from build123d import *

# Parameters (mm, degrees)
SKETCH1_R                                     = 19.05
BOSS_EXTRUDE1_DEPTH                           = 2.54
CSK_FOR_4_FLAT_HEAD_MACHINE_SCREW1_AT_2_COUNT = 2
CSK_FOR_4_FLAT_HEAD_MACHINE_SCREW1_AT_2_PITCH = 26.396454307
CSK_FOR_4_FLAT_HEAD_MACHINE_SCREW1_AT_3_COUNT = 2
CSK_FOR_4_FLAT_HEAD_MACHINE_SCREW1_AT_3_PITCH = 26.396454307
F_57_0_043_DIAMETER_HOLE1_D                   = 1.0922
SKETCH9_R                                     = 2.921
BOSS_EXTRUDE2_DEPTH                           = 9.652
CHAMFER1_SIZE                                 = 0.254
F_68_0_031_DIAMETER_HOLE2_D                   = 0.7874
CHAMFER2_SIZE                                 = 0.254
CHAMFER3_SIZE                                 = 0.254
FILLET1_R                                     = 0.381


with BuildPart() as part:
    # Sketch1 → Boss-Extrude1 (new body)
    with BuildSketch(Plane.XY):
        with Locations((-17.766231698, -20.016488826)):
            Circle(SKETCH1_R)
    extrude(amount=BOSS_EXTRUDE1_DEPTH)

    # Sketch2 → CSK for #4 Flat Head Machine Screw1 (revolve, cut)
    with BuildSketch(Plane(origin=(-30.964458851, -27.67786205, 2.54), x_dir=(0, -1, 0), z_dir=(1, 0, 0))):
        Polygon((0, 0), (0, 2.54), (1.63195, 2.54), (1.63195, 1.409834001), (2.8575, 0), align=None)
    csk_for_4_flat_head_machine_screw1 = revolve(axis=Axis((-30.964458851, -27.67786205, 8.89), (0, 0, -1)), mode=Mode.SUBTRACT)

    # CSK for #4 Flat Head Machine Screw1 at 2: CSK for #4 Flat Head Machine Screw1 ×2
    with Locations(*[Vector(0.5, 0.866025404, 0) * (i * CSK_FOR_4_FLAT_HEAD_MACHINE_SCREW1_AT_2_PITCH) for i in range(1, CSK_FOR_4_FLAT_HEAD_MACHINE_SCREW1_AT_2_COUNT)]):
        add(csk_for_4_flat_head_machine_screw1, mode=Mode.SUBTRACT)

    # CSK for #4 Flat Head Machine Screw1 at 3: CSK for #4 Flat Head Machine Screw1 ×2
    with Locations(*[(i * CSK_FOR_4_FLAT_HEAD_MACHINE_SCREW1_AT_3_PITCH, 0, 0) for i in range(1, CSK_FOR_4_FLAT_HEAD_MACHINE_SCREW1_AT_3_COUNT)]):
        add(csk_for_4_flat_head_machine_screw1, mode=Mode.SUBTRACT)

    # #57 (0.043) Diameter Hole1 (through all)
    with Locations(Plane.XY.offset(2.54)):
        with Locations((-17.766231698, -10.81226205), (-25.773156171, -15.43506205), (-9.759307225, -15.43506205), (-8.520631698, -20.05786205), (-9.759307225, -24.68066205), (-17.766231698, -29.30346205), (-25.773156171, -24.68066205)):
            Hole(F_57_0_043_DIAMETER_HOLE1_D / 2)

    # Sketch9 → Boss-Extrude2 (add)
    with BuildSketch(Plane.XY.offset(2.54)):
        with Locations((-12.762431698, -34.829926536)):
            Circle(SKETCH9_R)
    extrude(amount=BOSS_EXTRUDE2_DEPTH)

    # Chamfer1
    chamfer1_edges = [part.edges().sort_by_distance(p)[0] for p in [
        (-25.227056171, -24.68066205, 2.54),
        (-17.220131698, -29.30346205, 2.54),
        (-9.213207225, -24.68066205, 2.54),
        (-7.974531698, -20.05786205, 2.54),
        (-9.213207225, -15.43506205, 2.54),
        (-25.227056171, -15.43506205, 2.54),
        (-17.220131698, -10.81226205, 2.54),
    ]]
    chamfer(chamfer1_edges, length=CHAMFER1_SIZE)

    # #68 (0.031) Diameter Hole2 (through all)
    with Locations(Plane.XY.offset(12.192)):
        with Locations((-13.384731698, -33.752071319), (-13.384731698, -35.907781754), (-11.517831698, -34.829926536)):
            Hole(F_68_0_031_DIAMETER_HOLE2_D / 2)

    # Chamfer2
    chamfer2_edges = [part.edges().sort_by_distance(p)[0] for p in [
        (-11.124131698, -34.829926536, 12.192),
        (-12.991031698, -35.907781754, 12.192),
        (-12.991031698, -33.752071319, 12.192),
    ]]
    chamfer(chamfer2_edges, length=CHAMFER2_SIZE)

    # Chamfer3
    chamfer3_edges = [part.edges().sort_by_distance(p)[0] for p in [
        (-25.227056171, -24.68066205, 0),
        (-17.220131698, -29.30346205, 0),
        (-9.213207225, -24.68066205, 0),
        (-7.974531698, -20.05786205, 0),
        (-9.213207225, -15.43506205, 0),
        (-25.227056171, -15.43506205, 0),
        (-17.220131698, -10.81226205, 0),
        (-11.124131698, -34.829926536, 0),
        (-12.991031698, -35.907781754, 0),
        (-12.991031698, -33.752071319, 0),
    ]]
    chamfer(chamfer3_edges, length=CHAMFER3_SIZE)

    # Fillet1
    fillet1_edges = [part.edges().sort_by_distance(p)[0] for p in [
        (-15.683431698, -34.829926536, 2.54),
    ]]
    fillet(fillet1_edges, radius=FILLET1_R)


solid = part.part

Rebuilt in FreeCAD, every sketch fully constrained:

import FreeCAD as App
import Part
import Sketcher
Q = App.Units.Quantity


def edges_at(feature, points):
    """Names of the edges that pass closest to the given points."""
    edges = feature.Shape.Edges
    near = lambda p: min(range(len(edges)), key=lambda i: edges[i].distToShape(Part.Vertex(*p))[0])
    return sorted({f"Edge{near(p) + 1}" for p in points})


def add_polygon(sketch, points):
    """Adds a closed chain of lines whose ends are joined by coincident constraints."""
    first, n = sketch.GeometryCount, len(points)
    for a, b in zip(points, points[1:] + points[:1]):
        sketch.addGeometry(Part.LineSegment(App.Vector(*a, 0), App.Vector(*b, 0)), False)
    for i in range(n):
        sketch.addConstraint(Sketcher.Constraint("Coincident", first + i, 2, first + (i + 1) % n, 1))

doc = App.newDocument("Part")
body = doc.addObject("PartDesign::Body", "Body")

# Sketch on XY plane
sketch1 = body.newObject("Sketcher::SketchObject", "Sketch")
sketch1.AttachmentSupport = (doc.getObject("XY_Plane"), [""])
sketch1.MapMode = "FlatFace"
sketch1.addGeometry(Part.Circle(App.Vector(-18, -20, 0), App.Vector(0, 0, 1), 19), False)
sketch1.addConstraint([
    Sketcher.Constraint("Diameter", 0, Q("1.5 in")),
    Sketcher.Constraint("DistanceX", 0, 3, -1, 1, Q("17.766232 mm")),
    Sketcher.Constraint("DistanceY", 0, 3, -1, 1, Q("20.016489 mm")),
])
pad1 = body.newObject("PartDesign::Pad", "Pad")
pad1.Profile = sketch1
pad1.Length = Q("0.1 in")

# Sketch on YZ plane
sketch2 = body.newObject("Sketcher::SketchObject", "Sketch001")
sketch2.AttachmentSupport = (doc.getObject("YZ_Plane"), [""])
sketch2.MapMode = "FlatFace"
sketch2.AttachmentOffset = App.Placement(App.Vector(0, 0, -30.964459), App.Rotation())
add_polygon(sketch2, [(-27.7, 0), (-27.7, 2.5), (-30.5, 2.5), (-29.3, 1.1), (-29.3, 0)])  # lines 0-4
sketch2.addGeometry(Part.LineSegment(App.Vector(-27.7, 2.5, 0), App.Vector(-27.7, 0, 0)), True)  # axis
sketch2.addConstraint([
    Sketcher.Constraint("Vertical", 0),
    Sketcher.Constraint("Horizontal", 1),
    Sketcher.Constraint("Vertical", 3),
    Sketcher.Constraint("Horizontal", 4),
    Sketcher.Constraint("Vertical", 5),
    Sketcher.Constraint("Coincident", 5, 1, 0, 2),
    Sketcher.Constraint("PointOnObject", 3, 2, -1),
    Sketcher.Constraint("PointOnObject", 5, 2, -1),
    Sketcher.Constraint("DistanceY", 0, 1, 0, 2, Q("0.1 in")),
    Sketcher.Constraint("Angle", 2, Q("-49 deg")),
    Sketcher.Constraint("DistanceX", 1, 2, 1, 1, Q("0.1125 in")),
    Sketcher.Constraint("DistanceX", 4, 1, 4, 2, Q("1.63195 mm")),
    Sketcher.Constraint("DistanceX", 0, 2, -1, 1, Q("27.677862 mm")),
])
groove = body.newObject("PartDesign::Groove", "Groove")
groove.Profile = sketch2
groove.ReferenceAxis = (sketch2, ["Axis0"])
groove.Angle = 360
doc.recompute()

datumline = body.newObject("PartDesign::Line", "DatumLine")
datumline.Placement = App.Placement(App.Vector(0, 0, 0), App.Rotation(App.Vector(0, 0, 1), App.Vector(0.5, 0.866025404, 0)))
linearpattern = body.newObject("PartDesign::LinearPattern", "LinearPattern")
linearpattern.Originals = [groove]
linearpattern.Direction = (datumline, [""])
linearpattern.Mode = "offset"
linearpattern.Offset = 26.396454
linearpattern.Occurrences = 2
body.Tip = linearpattern
doc.recompute()

linearpattern2 = body.newObject("PartDesign::LinearPattern", "LinearPattern001")
linearpattern2.Originals = [groove]
linearpattern2.Direction = (doc.getObject("X_Axis"), [""])
linearpattern2.Mode = "offset"
linearpattern2.Offset = 26.396454
linearpattern2.Occurrences = 2
body.Tip = linearpattern2

# Sketch on XY plane
sketch3 = body.newObject("Sketcher::SketchObject", "Sketch002")
sketch3.AttachmentSupport = (doc.getObject("XY_Plane"), [""])
sketch3.MapMode = "FlatFace"
sketch3.AttachmentOffset = App.Placement(App.Vector(0, 0, 0.1 * 25.4), App.Rotation())
sketch3.addGeometry([
    Part.Circle(App.Vector(-17.8, -10.8, 0), App.Vector(0, 0, 1), 0.5),  # 0
    Part.Circle(App.Vector(-25.8, -15.4, 0), App.Vector(0, 0, 1), 0.5),  # 1
    Part.Circle(App.Vector(-9.8, -15.4, 0), App.Vector(0, 0, 1), 0.5),  # 2
    Part.Circle(App.Vector(-8.5, -20.1, 0), App.Vector(0, 0, 1), 0.5),  # 3
    Part.Circle(App.Vector(-9.8, -24.7, 0), App.Vector(0, 0, 1), 0.5),  # 4
    Part.Circle(App.Vector(-17.8, -29.3, 0), App.Vector(0, 0, 1), 0.5),  # 5
    Part.Circle(App.Vector(-25.8, -24.7, 0), App.Vector(0, 0, 1), 0.5),  # 6
], False)
sketch3.addConstraint([
    Sketcher.Constraint("Equal", 0, 1),
    Sketcher.Constraint("Equal", 1, 2),
    Sketcher.Constraint("Equal", 2, 3),
    Sketcher.Constraint("Equal", 3, 4),
    Sketcher.Constraint("Equal", 4, 5),
    Sketcher.Constraint("Equal", 5, 6),
    Sketcher.Constraint("Horizontal", 1, 3, 2, 3),
    Sketcher.Constraint("Horizontal", 4, 3, 6, 3),
    Sketcher.Constraint("Vertical", 2, 3, 4, 3),
    Sketcher.Constraint("Vertical", 0, 3, 5, 3),
    Sketcher.Constraint("Vertical", 1, 3, 6, 3),
    Sketcher.Constraint("Diameter", 0, Q("0.043 in")),
    Sketcher.Constraint("DistanceY", 1, 3, 0, 3, Q("0.182 in")),
    Sketcher.Constraint("DistanceY", 3, 3, 2, 3, Q("0.182 in")),
    Sketcher.Constraint("DistanceX", 0, 3, 3, 3, Q("0.364 in")),
    Sketcher.Constraint("DistanceY", 4, 3, 3, 3, Q("0.182 in")),
    Sketcher.Constraint("DistanceY", 5, 3, 4, 3, Q("0.182 in")),
    Sketcher.Constraint("DistanceX", 0, 3, -1, 1, Q("17.766232 mm")),
    Sketcher.Constraint("DistanceX", 1, 3, 2, 3, Q("16.013849 mm")),
    Sketcher.Constraint("DistanceY", 0, 3, -1, 1, Q("10.812262 mm")),
    Sketcher.Constraint("DistanceX", 1, 3, -1, 1, Q("25.773156 mm")),
])
doc.recompute()
hole = body.newObject("PartDesign::Hole", "Hole")
hole.Profile = sketch3
hole.ThreadType = "None"
hole.Diameter = Q("0.043 in")
hole.DepthType = "ThroughAll"

# Sketch on XY plane
sketch4 = body.newObject("Sketcher::SketchObject", "Sketch003")
sketch4.AttachmentSupport = (doc.getObject("XY_Plane"), [""])
sketch4.MapMode = "FlatFace"
sketch4.AttachmentOffset = App.Placement(App.Vector(0, 0, 0.1 * 25.4), App.Rotation())
sketch4.addGeometry(Part.Circle(App.Vector(-12.8, -34.8, 0), App.Vector(0, 0, 1), 2.9), False)
sketch4.addConstraint([
    Sketcher.Constraint("Diameter", 0, Q("0.23 in")),
    Sketcher.Constraint("DistanceX", 0, 3, -1, 1, Q("12.762432 mm")),
    Sketcher.Constraint("DistanceY", 0, 3, -1, 1, Q("34.829927 mm")),
])
pad2 = body.newObject("PartDesign::Pad", "Pad001")
pad2.Profile = sketch4
pad2.Length = Q("0.38 in")
doc.recompute()

chamfer = body.newObject("PartDesign::Chamfer", "Chamfer")
chamfer.Base = (pad2, edges_at(pad2, [
    (-25.227, -24.681, 2.54),
    (-17.22, -29.303, 2.54),
    (-9.213, -24.681, 2.54),
    (-7.975, -20.058, 2.54),
    (-9.213, -15.435, 2.54),
    (-25.227, -15.435, 2.54),
    (-17.22, -10.812, 2.54),
]))
chamfer.Size = Q("0.01 in")

# Sketch on XY plane
sketch5 = body.newObject("Sketcher::SketchObject", "Sketch004")
sketch5.AttachmentSupport = (doc.getObject("XY_Plane"), [""])
sketch5.MapMode = "FlatFace"
sketch5.AttachmentOffset = App.Placement(App.Vector(0, 0, 0.48 * 25.4), App.Rotation())
sketch5.addGeometry([
    Part.Circle(App.Vector(-13.38, -33.75, 0), App.Vector(0, 0, 1), 0.39),
    Part.Circle(App.Vector(-13.38, -35.91, 0), App.Vector(0, 0, 1), 0.39),
    Part.Circle(App.Vector(-11.52, -34.83, 0), App.Vector(0, 0, 1), 0.39),
], False)
sketch5.addConstraint([
    Sketcher.Constraint("Equal", 0, 1),
    Sketcher.Constraint("Equal", 1, 2),
    Sketcher.Constraint("Vertical", 0, 3, 1, 3),
    Sketcher.Constraint("Diameter", 0, Q("0.031 in")),
    Sketcher.Constraint("DistanceX", 0, 3, 2, 3, Q("0.0735 in")),
    Sketcher.Constraint("DistanceX", 0, 3, -1, 1, Q("13.384732 mm")),
    Sketcher.Constraint("DistanceY", 0, 3, -1, 1, Q("33.752071 mm")),
    Sketcher.Constraint("DistanceY", 1, 3, -1, 1, Q("35.907782 mm")),
    Sketcher.Constraint("DistanceY", 2, 3, -1, 1, Q("34.829927 mm")),
])
doc.recompute()
hole2 = body.newObject("PartDesign::Hole", "Hole001")
hole2.Profile = sketch5
hole2.ThreadType = "None"
hole2.Diameter = Q("0.031 in")
hole2.DepthType = "ThroughAll"
doc.recompute()

chamfer2 = body.newObject("PartDesign::Chamfer", "Chamfer001")
chamfer2.Base = (hole2, edges_at(hole2, [(-11.124, -34.83, 12.192), (-12.991, -35.908, 12.192), (-12.991, -33.752, 12.192)]))
chamfer2.Size = Q("0.01 in")
doc.recompute()

chamfer3 = body.newObject("PartDesign::Chamfer", "Chamfer002")
chamfer3.Base = (chamfer2, edges_at(chamfer2, [
    (-25.227, -24.681, 0),
    (-17.22, -29.303, 0),
    (-9.213, -24.681, 0),
    (-7.975, -20.058, 0),
    (-9.213, -15.435, 0),
    (-25.227, -15.435, 0),
    (-17.22, -10.812, 0),
    (-11.124, -34.83, 0),
    (-12.991, -35.908, 0),
    (-12.991, -33.752, 0),
]))
chamfer3.Size = Q("0.01 in")
doc.recompute()

fillet = body.newObject("PartDesign::Fillet", "Fillet")
fillet.Base = (chamfer3, edges_at(chamfer3, [(-15.683, -34.83, 2.54)]))
fillet.Radius = Q("0.015 in")

doc.recompute()
